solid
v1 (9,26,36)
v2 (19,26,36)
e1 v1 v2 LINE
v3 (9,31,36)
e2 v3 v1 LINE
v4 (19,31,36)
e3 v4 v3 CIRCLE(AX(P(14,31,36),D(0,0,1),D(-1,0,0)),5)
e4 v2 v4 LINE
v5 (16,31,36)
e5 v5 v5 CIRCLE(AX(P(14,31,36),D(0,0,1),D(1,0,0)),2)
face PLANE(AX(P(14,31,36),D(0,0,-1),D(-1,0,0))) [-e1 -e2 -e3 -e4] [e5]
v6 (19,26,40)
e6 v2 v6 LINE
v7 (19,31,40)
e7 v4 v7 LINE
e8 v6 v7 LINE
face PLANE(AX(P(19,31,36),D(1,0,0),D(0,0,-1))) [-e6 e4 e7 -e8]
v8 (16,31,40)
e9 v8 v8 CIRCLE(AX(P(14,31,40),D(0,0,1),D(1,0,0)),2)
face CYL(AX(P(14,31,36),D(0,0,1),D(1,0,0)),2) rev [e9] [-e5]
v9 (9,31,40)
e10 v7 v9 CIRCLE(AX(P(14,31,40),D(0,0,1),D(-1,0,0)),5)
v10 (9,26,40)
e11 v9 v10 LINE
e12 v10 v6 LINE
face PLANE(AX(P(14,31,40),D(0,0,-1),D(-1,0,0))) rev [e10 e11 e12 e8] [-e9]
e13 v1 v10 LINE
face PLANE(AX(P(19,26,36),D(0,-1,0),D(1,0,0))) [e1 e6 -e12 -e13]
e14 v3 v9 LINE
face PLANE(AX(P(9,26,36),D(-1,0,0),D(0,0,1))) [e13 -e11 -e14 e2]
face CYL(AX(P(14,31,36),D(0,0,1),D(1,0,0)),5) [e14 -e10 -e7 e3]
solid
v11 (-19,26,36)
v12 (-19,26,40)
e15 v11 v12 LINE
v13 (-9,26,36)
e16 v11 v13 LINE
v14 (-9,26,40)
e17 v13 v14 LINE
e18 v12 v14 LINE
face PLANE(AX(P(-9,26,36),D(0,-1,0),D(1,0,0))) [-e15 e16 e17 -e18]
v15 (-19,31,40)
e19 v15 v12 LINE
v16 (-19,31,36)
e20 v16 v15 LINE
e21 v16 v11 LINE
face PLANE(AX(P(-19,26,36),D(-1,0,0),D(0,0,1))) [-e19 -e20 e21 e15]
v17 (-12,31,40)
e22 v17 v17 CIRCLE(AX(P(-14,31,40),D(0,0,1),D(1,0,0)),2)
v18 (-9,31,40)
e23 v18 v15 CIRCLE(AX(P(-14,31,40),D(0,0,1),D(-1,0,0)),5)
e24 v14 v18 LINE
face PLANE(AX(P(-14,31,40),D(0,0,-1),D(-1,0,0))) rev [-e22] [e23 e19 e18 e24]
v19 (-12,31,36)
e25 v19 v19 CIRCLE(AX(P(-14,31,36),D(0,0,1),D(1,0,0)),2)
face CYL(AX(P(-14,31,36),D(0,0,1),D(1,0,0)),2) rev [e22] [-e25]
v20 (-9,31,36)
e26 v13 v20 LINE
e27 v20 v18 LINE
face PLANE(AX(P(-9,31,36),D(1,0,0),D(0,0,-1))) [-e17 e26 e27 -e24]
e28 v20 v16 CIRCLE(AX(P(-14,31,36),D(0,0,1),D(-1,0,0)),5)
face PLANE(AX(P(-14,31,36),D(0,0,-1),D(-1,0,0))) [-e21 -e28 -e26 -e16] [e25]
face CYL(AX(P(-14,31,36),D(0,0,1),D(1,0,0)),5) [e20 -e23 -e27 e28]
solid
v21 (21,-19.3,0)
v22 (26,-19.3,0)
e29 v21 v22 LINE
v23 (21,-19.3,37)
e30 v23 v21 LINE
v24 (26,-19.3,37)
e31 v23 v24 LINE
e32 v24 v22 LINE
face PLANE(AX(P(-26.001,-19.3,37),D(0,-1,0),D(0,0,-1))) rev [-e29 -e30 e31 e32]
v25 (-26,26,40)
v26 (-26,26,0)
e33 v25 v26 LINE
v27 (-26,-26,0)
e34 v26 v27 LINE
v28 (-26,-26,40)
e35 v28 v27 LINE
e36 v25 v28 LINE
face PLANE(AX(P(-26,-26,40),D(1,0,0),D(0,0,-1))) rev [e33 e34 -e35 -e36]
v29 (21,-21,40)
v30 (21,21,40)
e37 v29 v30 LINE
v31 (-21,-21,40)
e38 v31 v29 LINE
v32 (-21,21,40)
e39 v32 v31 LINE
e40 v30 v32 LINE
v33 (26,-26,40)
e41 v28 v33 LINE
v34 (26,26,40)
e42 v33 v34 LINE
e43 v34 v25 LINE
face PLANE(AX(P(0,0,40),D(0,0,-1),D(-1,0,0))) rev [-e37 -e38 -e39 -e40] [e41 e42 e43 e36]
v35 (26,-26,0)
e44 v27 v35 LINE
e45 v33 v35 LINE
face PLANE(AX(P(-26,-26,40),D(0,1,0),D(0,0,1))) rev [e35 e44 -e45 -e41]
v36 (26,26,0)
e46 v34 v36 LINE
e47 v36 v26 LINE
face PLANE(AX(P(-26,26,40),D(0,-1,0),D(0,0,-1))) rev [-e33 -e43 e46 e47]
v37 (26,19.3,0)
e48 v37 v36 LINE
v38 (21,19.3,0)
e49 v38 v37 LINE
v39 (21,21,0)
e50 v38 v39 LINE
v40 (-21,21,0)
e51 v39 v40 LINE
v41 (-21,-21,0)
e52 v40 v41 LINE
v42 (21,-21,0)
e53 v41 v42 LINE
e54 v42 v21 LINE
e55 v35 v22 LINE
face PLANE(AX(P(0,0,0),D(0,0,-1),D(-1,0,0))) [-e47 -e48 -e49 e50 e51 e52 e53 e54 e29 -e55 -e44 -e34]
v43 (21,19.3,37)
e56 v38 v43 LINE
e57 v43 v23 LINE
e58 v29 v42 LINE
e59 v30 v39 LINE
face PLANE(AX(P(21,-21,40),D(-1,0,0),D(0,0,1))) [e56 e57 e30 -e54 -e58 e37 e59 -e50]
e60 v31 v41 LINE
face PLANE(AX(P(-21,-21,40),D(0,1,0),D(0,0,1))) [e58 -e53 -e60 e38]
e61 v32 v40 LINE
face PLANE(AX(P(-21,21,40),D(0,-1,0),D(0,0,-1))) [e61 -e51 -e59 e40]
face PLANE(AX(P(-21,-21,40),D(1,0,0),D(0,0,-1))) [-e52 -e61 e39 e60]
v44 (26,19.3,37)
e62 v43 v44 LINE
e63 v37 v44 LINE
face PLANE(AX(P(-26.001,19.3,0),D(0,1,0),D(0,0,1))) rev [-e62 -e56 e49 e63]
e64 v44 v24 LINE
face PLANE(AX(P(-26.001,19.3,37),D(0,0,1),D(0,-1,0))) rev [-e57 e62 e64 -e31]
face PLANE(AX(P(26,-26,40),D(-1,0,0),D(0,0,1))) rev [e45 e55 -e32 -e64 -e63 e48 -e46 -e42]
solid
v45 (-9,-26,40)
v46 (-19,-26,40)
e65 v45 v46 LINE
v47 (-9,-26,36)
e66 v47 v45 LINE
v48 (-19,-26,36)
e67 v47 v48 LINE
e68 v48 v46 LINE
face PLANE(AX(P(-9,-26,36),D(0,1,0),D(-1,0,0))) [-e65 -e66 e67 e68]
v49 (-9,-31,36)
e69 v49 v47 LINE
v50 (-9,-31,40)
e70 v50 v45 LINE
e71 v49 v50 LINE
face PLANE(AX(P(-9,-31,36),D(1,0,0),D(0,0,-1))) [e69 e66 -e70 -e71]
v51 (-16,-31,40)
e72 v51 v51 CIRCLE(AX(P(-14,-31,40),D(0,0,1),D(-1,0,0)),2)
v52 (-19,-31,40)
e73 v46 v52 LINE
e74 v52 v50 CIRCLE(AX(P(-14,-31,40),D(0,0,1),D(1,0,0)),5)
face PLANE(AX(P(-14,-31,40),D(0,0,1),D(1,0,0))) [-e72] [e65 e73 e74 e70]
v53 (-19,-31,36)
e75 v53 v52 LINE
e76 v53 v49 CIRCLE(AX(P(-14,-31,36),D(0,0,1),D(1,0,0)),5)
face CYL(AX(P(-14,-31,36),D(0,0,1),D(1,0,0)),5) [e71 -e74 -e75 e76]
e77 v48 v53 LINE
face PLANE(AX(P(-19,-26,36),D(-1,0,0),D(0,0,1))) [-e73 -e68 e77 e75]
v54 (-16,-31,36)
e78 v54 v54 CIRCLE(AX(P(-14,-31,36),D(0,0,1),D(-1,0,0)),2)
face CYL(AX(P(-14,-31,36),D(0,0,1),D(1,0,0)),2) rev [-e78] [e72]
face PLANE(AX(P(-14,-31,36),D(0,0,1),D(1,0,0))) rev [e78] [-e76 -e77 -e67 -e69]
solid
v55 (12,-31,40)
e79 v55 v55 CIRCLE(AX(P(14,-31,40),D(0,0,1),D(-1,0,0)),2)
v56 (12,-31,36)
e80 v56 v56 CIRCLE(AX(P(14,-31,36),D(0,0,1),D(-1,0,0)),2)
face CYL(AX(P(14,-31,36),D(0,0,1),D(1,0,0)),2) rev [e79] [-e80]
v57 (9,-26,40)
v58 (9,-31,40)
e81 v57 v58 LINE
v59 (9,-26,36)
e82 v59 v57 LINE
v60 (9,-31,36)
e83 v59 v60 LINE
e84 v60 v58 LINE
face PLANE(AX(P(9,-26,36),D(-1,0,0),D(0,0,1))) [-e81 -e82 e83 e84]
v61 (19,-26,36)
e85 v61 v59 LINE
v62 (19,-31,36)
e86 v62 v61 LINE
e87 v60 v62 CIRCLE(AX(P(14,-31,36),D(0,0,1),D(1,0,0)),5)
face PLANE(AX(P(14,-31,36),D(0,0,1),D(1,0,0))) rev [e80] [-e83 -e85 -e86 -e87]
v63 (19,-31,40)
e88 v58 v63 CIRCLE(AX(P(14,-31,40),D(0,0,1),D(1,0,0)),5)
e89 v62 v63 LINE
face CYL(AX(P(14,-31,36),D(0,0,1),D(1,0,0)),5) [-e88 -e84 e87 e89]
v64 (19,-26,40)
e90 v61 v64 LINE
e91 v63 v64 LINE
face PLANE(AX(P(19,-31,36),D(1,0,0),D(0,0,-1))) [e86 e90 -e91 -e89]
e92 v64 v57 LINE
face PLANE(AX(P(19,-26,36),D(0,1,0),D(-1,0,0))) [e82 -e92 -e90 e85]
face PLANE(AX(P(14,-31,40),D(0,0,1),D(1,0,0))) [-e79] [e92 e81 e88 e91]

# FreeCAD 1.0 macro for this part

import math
import FreeCAD as App
import Part
import Sketcher
from FreeCAD import Vector


def add_polygon(sketch, points):
    """Adds a closed chain of lines whose ends are joined by coincident constraints."""
    first, n = sketch.GeometryCount, len(points)
    for a, b in zip(points, points[1:] + points[:1]):
        sketch.addGeometry(Part.LineSegment(App.Vector(*a, 0), App.Vector(*b, 0)), False)
    for i in range(n):
        sketch.addConstraint(Sketcher.Constraint("Coincident", first + i, 2, first + (i + 1) % n, 1))

doc = App.newDocument("Part")
body = doc.addObject("PartDesign::Body", "Body")

sketch1 = body.newObject("Sketcher::SketchObject", "Sketch")
sketch1.AttachmentSupport = (doc.getObject("XY_Plane"), [""])
sketch1.MapMode = "FlatFace"
add_polygon(sketch1, [(-26, 26), (-26, -26), (26, -26), (26, 26)])
sketch1.addConstraint(Sketcher.Constraint("Vertical", 0))
sketch1.addConstraint(Sketcher.Constraint("Horizontal", 1))
sketch1.addConstraint(Sketcher.Constraint("Vertical", 2))
sketch1.addConstraint(Sketcher.Constraint("Horizontal", 3))
sketch1.addConstraint(Sketcher.Constraint("Symmetric", 0, 2, 2, 2, -1, 1))
sketch1.addConstraint(Sketcher.Constraint("Equal", 3, 0))
sketch1.addConstraint(Sketcher.Constraint("DistanceX", 1, 1, 1, 2, 52.0))
pad1 = body.newObject("PartDesign::Pad", "Pad")
pad1.Profile = sketch1
pad1.Length = 40

sketch2 = body.newObject("Sketcher::SketchObject", "Sketch001")
sketch2.AttachmentSupport = (doc.getObject("XY_Plane"), [""])
sketch2.MapMode = "FlatFace"
add_polygon(sketch2, [(-21, 21), (-21, -21), (21, -21), (21, 21)])
sketch2.addConstraint(Sketcher.Constraint("Vertical", 0))
sketch2.addConstraint(Sketcher.Constraint("Horizontal", 1))
sketch2.addConstraint(Sketcher.Constraint("Vertical", 2))
sketch2.addConstraint(Sketcher.Constraint("Horizontal", 3))
sketch2.addConstraint(Sketcher.Constraint("Symmetric", 0, 2, 2, 2, -1, 1))
sketch2.addConstraint(Sketcher.Constraint("Equal", 3, 0))
sketch2.addConstraint(Sketcher.Constraint("DistanceX", 1, 1, 1, 2, 42.0))
pocket1 = body.newObject("PartDesign::Pocket", "Pocket")
pocket1.Profile = sketch2
pocket1.Length = 40
pocket1.Reversed = True

sketch3 = body.newObject("Sketcher::SketchObject", "Sketch002")
sketch3.AttachmentSupport = (doc.getObject("YZ_Plane"), [""])
sketch3.MapMode = "FlatFace"
sketch3.AttachmentOffset = App.Placement(Vector(0, 0, 26), App.Rotation())
add_polygon(sketch3, [(19, 37), (-19, 37), (-19, 0), (19, 0)])
sketch3.addConstraint(Sketcher.Constraint("Horizontal", 0))
sketch3.addConstraint(Sketcher.Constraint("Vertical", 1))
sketch3.addConstraint(Sketcher.Constraint("Horizontal", 2))
sketch3.addConstraint(Sketcher.Constraint("Vertical", 3))
sketch3.addConstraint(Sketcher.Constraint("Symmetric", 1, 2, 2, 2, -1, 1))
sketch3.addConstraint(Sketcher.Constraint("DistanceY", 1, 2, 1, 1, 37.0))
sketch3.addConstraint(Sketcher.Constraint("DistanceX", 0, 2, 0, 1, 38.6))
pocket2 = body.newObject("PartDesign::Pocket", "Pocket001")
pocket2.Profile = sketch3
pocket2.Type = "UpToFirst"
body2 = doc.addObject("PartDesign::Body", "Body001")

sketch4 = body2.newObject("Sketcher::SketchObject", "Sketch003")
sketch4.AttachmentSupport = (doc.getObject("XY_Plane001"), [""])
sketch4.MapMode = "FlatFace"
sketch4.AttachmentOffset = App.Placement(Vector(0, 0, 40), App.Rotation())
sketch4.addGeometry(Part.LineSegment(Vector(-19, 31, 0), Vector(-19, 26, 0)), False)
sketch4.addGeometry(Part.LineSegment(Vector(-19, 26, 0), Vector(-9, 26, 0)), False)
sketch4.addGeometry(Part.LineSegment(Vector(-9, 26, 0), Vector(-9, 31, 0)), False)
sketch4.addGeometry(Part.ArcOfCircle(Part.Circle(Vector(-14, 31, 0), Vector(0, 0, 1), 5), math.radians(0), math.radians(180)), False)
sketch4.addGeometry(Part.Circle(Vector(-14, 31, 0), Vector(0, 0, 1), 2), False)
sketch4.addConstraint(Sketcher.Constraint("Coincident", 0, 2, 1, 1))
sketch4.addConstraint(Sketcher.Constraint("Coincident", 1, 2, 2, 1))
sketch4.addConstraint(Sketcher.Constraint("Tangent", 2, 2, 3, 1))
sketch4.addConstraint(Sketcher.Constraint("Tangent", 3, 2, 0, 1))
sketch4.addConstraint(Sketcher.Constraint("Vertical", 0))
sketch4.addConstraint(Sketcher.Constraint("Horizontal", 1))
sketch4.addConstraint(Sketcher.Constraint("Vertical", 2))
sketch4.addConstraint(Sketcher.Constraint("Coincident", 4, 3, 3, 3))
sketch4.addConstraint(Sketcher.Constraint("Diameter", 4, 4.0))
sketch4.addConstraint(Sketcher.Constraint("Radius", 3, 5.0))
sketch4.addConstraint(Sketcher.Constraint("DistanceY", 0, 2, 0, 1, 5.0))
sketch4.addConstraint(Sketcher.Constraint("DistanceX", 3, 3, -1, 1, 14.0))
sketch4.addConstraint(Sketcher.Constraint("DistanceY", -1, 1, 3, 3, 31.0))
pad2 = body2.newObject("PartDesign::Pad", "Pad001")
pad2.Profile = sketch4
pad2.Length = 4
pad2.Reversed = True
body3 = doc.addObject("PartDesign::Body", "Body002")

sketch5 = body3.newObject("Sketcher::SketchObject", "Sketch004")
sketch5.AttachmentSupport = (doc.getObject("XY_Plane002"), [""])
sketch5.MapMode = "FlatFace"
sketch5.AttachmentOffset = App.Placement(Vector(0, 0, 40), App.Rotation())
sketch5.addGeometry(Part.LineSegment(Vector(19, 26, 0), Vector(19, 31, 0)), False)
sketch5.addGeometry(Part.ArcOfCircle(Part.Circle(Vector(14, 31, 0), Vector(0, 0, 1), 5), math.radians(0), math.radians(180)), False)
sketch5.addGeometry(Part.LineSegment(Vector(9, 31, 0), Vector(9, 26, 0)), False)
sketch5.addGeometry(Part.LineSegment(Vector(9, 26, 0), Vector(19, 26, 0)), False)
sketch5.addGeometry(Part.Circle(Vector(14, 31, 0), Vector(0, 0, 1), 2), False)
sketch5.addConstraint(Sketcher.Constraint("Tangent", 0, 2, 1, 1))
sketch5.addConstraint(Sketcher.Constraint("Tangent", 1, 2, 2, 1))
sketch5.addConstraint(Sketcher.Constraint("Coincident", 2, 2, 3, 1))
sketch5.addConstraint(Sketcher.Constraint("Coincident", 3, 2, 0, 1))
sketch5.addConstraint(Sketcher.Constraint("Vertical", 0))
sketch5.addConstraint(Sketcher.Constraint("Vertical", 2))
sketch5.addConstraint(Sketcher.Constraint("Horizontal", 3))
sketch5.addConstraint(Sketcher.Constraint("Coincident", 4, 3, 1, 3))
sketch5.addConstraint(Sketcher.Constraint("Diameter", 4, 4.0))
sketch5.addConstraint(Sketcher.Constraint("Radius", 1, 5.0))
sketch5.addConstraint(Sketcher.Constraint("DistanceY", 0, 1, 0, 2, 5.0))
sketch5.addConstraint(Sketcher.Constraint("DistanceX", -1, 1, 1, 3, 14.0))
sketch5.addConstraint(Sketcher.Constraint("DistanceY", -1, 1, 1, 3, 31.0))
pad3 = body3.newObject("PartDesign::Pad", "Pad002")
pad3.Profile = sketch5
pad3.Length = 4
pad3.Reversed = True
body4 = doc.addObject("PartDesign::Body", "Body003")

sketch6 = body4.newObject("Sketcher::SketchObject", "Sketch005")
sketch6.AttachmentSupport = (doc.getObject("XY_Plane003"), [""])
sketch6.MapMode = "FlatFace"
sketch6.AttachmentOffset = App.Placement(Vector(0, 0, 40), App.Rotation())
sketch6.addGeometry(Part.LineSegment(Vector(9, -26, 0), Vector(9, -31, 0)), False)
sketch6.addGeometry(Part.ArcOfCircle(Part.Circle(Vector(14, -31, 0), Vector(0, 0, 1), 5), math.radians(180), math.radians(360)), False)
sketch6.addGeometry(Part.LineSegment(Vector(19, -31, 0), Vector(19, -26, 0)), False)
sketch6.addGeometry(Part.LineSegment(Vector(19, -26, 0), Vector(9, -26, 0)), False)
sketch6.addGeometry(Part.Circle(Vector(14, -31, 0), Vector(0, 0, 1), 2), False)
sketch6.addConstraint(Sketcher.Constraint("Tangent", 0, 2, 1, 1))
sketch6.addConstraint(Sketcher.Constraint("Tangent", 1, 2, 2, 1))
sketch6.addConstraint(Sketcher.Constraint("Coincident", 2, 2, 3, 1))
sketch6.addConstraint(Sketcher.Constraint("Coincident", 3, 2, 0, 1))
sketch6.addConstraint(Sketcher.Constraint("Vertical", 0))
sketch6.addConstraint(Sketcher.Constraint("Vertical", 2))
sketch6.addConstraint(Sketcher.Constraint("Horizontal", 3))
sketch6.addConstraint(Sketcher.Constraint("Coincident", 4, 3, 1, 3))
sketch6.addConstraint(Sketcher.Constraint("Diameter", 4, 4.0))
sketch6.addConstraint(Sketcher.Constraint("Radius", 1, 5.0))
sketch6.addConstraint(Sketcher.Constraint("DistanceY", 0, 2, 0, 1, 5.0))
sketch6.addConstraint(Sketcher.Constraint("DistanceX", -1, 1, 1, 3, 14.0))
sketch6.addConstraint(Sketcher.Constraint("DistanceY", 1, 3, -1, 1, 31.0))
pad4 = body4.newObject("PartDesign::Pad", "Pad003")
pad4.Profile = sketch6
pad4.Length = 4
pad4.Reversed = True
body5 = doc.addObject("PartDesign::Body", "Body004")

sketch7 = body5.newObject("Sketcher::SketchObject", "Sketch006")
sketch7.AttachmentSupport = (doc.getObject("XY_Plane004"), [""])
sketch7.MapMode = "FlatFace"
sketch7.AttachmentOffset = App.Placement(Vector(0, 0, 40), App.Rotation())
sketch7.addGeometry(Part.LineSegment(Vector(-9, -26, 0), Vector(-19, -26, 0)), False)
sketch7.addGeometry(Part.LineSegment(Vector(-19, -26, 0), Vector(-19, -31, 0)), False)
sketch7.addGeometry(Part.ArcOfCircle(Part.Circle(Vector(-14, -31, 0), Vector(0, 0, 1), 5), math.radians(180), math.radians(360)), False)
sketch7.addGeometry(Part.LineSegment(Vector(-9, -31, 0), Vector(-9, -26, 0)), False)
sketch7.addGeometry(Part.Circle(Vector(-14, -31, 0), Vector(0, 0, 1), 2), False)
sketch7.addConstraint(Sketcher.Constraint("Coincident", 0, 2, 1, 1))
sketch7.addConstraint(Sketcher.Constraint("Tangent", 1, 2, 2, 1))
sketch7.addConstraint(Sketcher.Constraint("Tangent", 2, 2, 3, 1))
sketch7.addConstraint(Sketcher.Constraint("Coincident", 3, 2, 0, 1))
sketch7.addConstraint(Sketcher.Constraint("Horizontal", 0))
sketch7.addConstraint(Sketcher.Constraint("Vertical", 1))
sketch7.addConstraint(Sketcher.Constraint("Vertical", 3))
sketch7.addConstraint(Sketcher.Constraint("Coincident", 4, 3, 2, 3))
sketch7.addConstraint(Sketcher.Constraint("Diameter", 4, 4.0))
sketch7.addConstraint(Sketcher.Constraint("Radius", 2, 5.0))
sketch7.addConstraint(Sketcher.Constraint("DistanceY", 1, 2, 1, 1, 5.0))
sketch7.addConstraint(Sketcher.Constraint("DistanceX", 2, 3, -1, 1, 14.0))
sketch7.addConstraint(Sketcher.Constraint("DistanceY", 2, 3, -1, 1, 31.0))
pad5 = body5.newObject("PartDesign::Pad", "Pad004")
pad5.Profile = sketch7
pad5.Length = 4
pad5.Reversed = True

doc.recompute()
